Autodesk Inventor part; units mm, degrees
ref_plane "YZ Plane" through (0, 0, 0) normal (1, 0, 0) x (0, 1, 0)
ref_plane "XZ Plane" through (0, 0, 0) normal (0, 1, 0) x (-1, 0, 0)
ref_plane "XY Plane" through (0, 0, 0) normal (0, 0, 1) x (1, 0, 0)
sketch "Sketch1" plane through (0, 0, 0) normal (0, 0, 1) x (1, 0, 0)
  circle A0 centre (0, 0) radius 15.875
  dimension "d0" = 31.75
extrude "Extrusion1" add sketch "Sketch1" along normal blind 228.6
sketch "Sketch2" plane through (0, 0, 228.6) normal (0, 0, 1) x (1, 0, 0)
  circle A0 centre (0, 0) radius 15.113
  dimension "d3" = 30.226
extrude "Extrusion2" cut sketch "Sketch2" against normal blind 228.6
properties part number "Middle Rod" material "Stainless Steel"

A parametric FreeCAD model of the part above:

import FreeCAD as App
import Part
import Sketcher
Q = App.Units.Quantity

doc = App.newDocument("Part")
body = doc.addObject("PartDesign::Body", "Body")

# Sketch on XY plane
sketch1 = body.newObject("Sketcher::SketchObject", "Sketch")
sketch1.AttachmentSupport = (doc.getObject("XY_Plane"), [""])
sketch1.MapMode = "FlatFace"
sketch1.addGeometry(Part.Circle(App.Vector(0, 0, 0), App.Vector(0, 0, 1), 15.875), False)
sketch1.addConstraint(Sketcher.Constraint("Coincident", 0, 3, -1, 1))
sketch1.addConstraint(Sketcher.Constraint("Diameter", 0, Q("1.25 in")))
pad1 = body.newObject("PartDesign::Pad", "Pad")
pad1.Profile = sketch1
pad1.Length = Q("9 in")

# Sketch on XY plane
sketch2 = body.newObject("Sketcher::SketchObject", "Sketch001")
sketch2.AttachmentSupport = (doc.getObject("XY_Plane"), [""])
sketch2.MapMode = "FlatFace"
sketch2.AttachmentOffset = App.Placement(App.Vector(0, 0, 9 * 25.4), App.Rotation())
sketch2.addGeometry(Part.Circle(App.Vector(0, 0, 0), App.Vector(0, 0, 1), 15.113), False)
sketch2.addConstraint(Sketcher.Constraint("Coincident", 0, 3, -1, 1))
sketch2.addConstraint(Sketcher.Constraint("Diameter", 0, Q("1.19 in")))
pocket1 = body.newObject("PartDesign::Pocket", "Pocket")
pocket1.Profile = sketch2
pocket1.Length = Q("9 in")

doc.recompute()
